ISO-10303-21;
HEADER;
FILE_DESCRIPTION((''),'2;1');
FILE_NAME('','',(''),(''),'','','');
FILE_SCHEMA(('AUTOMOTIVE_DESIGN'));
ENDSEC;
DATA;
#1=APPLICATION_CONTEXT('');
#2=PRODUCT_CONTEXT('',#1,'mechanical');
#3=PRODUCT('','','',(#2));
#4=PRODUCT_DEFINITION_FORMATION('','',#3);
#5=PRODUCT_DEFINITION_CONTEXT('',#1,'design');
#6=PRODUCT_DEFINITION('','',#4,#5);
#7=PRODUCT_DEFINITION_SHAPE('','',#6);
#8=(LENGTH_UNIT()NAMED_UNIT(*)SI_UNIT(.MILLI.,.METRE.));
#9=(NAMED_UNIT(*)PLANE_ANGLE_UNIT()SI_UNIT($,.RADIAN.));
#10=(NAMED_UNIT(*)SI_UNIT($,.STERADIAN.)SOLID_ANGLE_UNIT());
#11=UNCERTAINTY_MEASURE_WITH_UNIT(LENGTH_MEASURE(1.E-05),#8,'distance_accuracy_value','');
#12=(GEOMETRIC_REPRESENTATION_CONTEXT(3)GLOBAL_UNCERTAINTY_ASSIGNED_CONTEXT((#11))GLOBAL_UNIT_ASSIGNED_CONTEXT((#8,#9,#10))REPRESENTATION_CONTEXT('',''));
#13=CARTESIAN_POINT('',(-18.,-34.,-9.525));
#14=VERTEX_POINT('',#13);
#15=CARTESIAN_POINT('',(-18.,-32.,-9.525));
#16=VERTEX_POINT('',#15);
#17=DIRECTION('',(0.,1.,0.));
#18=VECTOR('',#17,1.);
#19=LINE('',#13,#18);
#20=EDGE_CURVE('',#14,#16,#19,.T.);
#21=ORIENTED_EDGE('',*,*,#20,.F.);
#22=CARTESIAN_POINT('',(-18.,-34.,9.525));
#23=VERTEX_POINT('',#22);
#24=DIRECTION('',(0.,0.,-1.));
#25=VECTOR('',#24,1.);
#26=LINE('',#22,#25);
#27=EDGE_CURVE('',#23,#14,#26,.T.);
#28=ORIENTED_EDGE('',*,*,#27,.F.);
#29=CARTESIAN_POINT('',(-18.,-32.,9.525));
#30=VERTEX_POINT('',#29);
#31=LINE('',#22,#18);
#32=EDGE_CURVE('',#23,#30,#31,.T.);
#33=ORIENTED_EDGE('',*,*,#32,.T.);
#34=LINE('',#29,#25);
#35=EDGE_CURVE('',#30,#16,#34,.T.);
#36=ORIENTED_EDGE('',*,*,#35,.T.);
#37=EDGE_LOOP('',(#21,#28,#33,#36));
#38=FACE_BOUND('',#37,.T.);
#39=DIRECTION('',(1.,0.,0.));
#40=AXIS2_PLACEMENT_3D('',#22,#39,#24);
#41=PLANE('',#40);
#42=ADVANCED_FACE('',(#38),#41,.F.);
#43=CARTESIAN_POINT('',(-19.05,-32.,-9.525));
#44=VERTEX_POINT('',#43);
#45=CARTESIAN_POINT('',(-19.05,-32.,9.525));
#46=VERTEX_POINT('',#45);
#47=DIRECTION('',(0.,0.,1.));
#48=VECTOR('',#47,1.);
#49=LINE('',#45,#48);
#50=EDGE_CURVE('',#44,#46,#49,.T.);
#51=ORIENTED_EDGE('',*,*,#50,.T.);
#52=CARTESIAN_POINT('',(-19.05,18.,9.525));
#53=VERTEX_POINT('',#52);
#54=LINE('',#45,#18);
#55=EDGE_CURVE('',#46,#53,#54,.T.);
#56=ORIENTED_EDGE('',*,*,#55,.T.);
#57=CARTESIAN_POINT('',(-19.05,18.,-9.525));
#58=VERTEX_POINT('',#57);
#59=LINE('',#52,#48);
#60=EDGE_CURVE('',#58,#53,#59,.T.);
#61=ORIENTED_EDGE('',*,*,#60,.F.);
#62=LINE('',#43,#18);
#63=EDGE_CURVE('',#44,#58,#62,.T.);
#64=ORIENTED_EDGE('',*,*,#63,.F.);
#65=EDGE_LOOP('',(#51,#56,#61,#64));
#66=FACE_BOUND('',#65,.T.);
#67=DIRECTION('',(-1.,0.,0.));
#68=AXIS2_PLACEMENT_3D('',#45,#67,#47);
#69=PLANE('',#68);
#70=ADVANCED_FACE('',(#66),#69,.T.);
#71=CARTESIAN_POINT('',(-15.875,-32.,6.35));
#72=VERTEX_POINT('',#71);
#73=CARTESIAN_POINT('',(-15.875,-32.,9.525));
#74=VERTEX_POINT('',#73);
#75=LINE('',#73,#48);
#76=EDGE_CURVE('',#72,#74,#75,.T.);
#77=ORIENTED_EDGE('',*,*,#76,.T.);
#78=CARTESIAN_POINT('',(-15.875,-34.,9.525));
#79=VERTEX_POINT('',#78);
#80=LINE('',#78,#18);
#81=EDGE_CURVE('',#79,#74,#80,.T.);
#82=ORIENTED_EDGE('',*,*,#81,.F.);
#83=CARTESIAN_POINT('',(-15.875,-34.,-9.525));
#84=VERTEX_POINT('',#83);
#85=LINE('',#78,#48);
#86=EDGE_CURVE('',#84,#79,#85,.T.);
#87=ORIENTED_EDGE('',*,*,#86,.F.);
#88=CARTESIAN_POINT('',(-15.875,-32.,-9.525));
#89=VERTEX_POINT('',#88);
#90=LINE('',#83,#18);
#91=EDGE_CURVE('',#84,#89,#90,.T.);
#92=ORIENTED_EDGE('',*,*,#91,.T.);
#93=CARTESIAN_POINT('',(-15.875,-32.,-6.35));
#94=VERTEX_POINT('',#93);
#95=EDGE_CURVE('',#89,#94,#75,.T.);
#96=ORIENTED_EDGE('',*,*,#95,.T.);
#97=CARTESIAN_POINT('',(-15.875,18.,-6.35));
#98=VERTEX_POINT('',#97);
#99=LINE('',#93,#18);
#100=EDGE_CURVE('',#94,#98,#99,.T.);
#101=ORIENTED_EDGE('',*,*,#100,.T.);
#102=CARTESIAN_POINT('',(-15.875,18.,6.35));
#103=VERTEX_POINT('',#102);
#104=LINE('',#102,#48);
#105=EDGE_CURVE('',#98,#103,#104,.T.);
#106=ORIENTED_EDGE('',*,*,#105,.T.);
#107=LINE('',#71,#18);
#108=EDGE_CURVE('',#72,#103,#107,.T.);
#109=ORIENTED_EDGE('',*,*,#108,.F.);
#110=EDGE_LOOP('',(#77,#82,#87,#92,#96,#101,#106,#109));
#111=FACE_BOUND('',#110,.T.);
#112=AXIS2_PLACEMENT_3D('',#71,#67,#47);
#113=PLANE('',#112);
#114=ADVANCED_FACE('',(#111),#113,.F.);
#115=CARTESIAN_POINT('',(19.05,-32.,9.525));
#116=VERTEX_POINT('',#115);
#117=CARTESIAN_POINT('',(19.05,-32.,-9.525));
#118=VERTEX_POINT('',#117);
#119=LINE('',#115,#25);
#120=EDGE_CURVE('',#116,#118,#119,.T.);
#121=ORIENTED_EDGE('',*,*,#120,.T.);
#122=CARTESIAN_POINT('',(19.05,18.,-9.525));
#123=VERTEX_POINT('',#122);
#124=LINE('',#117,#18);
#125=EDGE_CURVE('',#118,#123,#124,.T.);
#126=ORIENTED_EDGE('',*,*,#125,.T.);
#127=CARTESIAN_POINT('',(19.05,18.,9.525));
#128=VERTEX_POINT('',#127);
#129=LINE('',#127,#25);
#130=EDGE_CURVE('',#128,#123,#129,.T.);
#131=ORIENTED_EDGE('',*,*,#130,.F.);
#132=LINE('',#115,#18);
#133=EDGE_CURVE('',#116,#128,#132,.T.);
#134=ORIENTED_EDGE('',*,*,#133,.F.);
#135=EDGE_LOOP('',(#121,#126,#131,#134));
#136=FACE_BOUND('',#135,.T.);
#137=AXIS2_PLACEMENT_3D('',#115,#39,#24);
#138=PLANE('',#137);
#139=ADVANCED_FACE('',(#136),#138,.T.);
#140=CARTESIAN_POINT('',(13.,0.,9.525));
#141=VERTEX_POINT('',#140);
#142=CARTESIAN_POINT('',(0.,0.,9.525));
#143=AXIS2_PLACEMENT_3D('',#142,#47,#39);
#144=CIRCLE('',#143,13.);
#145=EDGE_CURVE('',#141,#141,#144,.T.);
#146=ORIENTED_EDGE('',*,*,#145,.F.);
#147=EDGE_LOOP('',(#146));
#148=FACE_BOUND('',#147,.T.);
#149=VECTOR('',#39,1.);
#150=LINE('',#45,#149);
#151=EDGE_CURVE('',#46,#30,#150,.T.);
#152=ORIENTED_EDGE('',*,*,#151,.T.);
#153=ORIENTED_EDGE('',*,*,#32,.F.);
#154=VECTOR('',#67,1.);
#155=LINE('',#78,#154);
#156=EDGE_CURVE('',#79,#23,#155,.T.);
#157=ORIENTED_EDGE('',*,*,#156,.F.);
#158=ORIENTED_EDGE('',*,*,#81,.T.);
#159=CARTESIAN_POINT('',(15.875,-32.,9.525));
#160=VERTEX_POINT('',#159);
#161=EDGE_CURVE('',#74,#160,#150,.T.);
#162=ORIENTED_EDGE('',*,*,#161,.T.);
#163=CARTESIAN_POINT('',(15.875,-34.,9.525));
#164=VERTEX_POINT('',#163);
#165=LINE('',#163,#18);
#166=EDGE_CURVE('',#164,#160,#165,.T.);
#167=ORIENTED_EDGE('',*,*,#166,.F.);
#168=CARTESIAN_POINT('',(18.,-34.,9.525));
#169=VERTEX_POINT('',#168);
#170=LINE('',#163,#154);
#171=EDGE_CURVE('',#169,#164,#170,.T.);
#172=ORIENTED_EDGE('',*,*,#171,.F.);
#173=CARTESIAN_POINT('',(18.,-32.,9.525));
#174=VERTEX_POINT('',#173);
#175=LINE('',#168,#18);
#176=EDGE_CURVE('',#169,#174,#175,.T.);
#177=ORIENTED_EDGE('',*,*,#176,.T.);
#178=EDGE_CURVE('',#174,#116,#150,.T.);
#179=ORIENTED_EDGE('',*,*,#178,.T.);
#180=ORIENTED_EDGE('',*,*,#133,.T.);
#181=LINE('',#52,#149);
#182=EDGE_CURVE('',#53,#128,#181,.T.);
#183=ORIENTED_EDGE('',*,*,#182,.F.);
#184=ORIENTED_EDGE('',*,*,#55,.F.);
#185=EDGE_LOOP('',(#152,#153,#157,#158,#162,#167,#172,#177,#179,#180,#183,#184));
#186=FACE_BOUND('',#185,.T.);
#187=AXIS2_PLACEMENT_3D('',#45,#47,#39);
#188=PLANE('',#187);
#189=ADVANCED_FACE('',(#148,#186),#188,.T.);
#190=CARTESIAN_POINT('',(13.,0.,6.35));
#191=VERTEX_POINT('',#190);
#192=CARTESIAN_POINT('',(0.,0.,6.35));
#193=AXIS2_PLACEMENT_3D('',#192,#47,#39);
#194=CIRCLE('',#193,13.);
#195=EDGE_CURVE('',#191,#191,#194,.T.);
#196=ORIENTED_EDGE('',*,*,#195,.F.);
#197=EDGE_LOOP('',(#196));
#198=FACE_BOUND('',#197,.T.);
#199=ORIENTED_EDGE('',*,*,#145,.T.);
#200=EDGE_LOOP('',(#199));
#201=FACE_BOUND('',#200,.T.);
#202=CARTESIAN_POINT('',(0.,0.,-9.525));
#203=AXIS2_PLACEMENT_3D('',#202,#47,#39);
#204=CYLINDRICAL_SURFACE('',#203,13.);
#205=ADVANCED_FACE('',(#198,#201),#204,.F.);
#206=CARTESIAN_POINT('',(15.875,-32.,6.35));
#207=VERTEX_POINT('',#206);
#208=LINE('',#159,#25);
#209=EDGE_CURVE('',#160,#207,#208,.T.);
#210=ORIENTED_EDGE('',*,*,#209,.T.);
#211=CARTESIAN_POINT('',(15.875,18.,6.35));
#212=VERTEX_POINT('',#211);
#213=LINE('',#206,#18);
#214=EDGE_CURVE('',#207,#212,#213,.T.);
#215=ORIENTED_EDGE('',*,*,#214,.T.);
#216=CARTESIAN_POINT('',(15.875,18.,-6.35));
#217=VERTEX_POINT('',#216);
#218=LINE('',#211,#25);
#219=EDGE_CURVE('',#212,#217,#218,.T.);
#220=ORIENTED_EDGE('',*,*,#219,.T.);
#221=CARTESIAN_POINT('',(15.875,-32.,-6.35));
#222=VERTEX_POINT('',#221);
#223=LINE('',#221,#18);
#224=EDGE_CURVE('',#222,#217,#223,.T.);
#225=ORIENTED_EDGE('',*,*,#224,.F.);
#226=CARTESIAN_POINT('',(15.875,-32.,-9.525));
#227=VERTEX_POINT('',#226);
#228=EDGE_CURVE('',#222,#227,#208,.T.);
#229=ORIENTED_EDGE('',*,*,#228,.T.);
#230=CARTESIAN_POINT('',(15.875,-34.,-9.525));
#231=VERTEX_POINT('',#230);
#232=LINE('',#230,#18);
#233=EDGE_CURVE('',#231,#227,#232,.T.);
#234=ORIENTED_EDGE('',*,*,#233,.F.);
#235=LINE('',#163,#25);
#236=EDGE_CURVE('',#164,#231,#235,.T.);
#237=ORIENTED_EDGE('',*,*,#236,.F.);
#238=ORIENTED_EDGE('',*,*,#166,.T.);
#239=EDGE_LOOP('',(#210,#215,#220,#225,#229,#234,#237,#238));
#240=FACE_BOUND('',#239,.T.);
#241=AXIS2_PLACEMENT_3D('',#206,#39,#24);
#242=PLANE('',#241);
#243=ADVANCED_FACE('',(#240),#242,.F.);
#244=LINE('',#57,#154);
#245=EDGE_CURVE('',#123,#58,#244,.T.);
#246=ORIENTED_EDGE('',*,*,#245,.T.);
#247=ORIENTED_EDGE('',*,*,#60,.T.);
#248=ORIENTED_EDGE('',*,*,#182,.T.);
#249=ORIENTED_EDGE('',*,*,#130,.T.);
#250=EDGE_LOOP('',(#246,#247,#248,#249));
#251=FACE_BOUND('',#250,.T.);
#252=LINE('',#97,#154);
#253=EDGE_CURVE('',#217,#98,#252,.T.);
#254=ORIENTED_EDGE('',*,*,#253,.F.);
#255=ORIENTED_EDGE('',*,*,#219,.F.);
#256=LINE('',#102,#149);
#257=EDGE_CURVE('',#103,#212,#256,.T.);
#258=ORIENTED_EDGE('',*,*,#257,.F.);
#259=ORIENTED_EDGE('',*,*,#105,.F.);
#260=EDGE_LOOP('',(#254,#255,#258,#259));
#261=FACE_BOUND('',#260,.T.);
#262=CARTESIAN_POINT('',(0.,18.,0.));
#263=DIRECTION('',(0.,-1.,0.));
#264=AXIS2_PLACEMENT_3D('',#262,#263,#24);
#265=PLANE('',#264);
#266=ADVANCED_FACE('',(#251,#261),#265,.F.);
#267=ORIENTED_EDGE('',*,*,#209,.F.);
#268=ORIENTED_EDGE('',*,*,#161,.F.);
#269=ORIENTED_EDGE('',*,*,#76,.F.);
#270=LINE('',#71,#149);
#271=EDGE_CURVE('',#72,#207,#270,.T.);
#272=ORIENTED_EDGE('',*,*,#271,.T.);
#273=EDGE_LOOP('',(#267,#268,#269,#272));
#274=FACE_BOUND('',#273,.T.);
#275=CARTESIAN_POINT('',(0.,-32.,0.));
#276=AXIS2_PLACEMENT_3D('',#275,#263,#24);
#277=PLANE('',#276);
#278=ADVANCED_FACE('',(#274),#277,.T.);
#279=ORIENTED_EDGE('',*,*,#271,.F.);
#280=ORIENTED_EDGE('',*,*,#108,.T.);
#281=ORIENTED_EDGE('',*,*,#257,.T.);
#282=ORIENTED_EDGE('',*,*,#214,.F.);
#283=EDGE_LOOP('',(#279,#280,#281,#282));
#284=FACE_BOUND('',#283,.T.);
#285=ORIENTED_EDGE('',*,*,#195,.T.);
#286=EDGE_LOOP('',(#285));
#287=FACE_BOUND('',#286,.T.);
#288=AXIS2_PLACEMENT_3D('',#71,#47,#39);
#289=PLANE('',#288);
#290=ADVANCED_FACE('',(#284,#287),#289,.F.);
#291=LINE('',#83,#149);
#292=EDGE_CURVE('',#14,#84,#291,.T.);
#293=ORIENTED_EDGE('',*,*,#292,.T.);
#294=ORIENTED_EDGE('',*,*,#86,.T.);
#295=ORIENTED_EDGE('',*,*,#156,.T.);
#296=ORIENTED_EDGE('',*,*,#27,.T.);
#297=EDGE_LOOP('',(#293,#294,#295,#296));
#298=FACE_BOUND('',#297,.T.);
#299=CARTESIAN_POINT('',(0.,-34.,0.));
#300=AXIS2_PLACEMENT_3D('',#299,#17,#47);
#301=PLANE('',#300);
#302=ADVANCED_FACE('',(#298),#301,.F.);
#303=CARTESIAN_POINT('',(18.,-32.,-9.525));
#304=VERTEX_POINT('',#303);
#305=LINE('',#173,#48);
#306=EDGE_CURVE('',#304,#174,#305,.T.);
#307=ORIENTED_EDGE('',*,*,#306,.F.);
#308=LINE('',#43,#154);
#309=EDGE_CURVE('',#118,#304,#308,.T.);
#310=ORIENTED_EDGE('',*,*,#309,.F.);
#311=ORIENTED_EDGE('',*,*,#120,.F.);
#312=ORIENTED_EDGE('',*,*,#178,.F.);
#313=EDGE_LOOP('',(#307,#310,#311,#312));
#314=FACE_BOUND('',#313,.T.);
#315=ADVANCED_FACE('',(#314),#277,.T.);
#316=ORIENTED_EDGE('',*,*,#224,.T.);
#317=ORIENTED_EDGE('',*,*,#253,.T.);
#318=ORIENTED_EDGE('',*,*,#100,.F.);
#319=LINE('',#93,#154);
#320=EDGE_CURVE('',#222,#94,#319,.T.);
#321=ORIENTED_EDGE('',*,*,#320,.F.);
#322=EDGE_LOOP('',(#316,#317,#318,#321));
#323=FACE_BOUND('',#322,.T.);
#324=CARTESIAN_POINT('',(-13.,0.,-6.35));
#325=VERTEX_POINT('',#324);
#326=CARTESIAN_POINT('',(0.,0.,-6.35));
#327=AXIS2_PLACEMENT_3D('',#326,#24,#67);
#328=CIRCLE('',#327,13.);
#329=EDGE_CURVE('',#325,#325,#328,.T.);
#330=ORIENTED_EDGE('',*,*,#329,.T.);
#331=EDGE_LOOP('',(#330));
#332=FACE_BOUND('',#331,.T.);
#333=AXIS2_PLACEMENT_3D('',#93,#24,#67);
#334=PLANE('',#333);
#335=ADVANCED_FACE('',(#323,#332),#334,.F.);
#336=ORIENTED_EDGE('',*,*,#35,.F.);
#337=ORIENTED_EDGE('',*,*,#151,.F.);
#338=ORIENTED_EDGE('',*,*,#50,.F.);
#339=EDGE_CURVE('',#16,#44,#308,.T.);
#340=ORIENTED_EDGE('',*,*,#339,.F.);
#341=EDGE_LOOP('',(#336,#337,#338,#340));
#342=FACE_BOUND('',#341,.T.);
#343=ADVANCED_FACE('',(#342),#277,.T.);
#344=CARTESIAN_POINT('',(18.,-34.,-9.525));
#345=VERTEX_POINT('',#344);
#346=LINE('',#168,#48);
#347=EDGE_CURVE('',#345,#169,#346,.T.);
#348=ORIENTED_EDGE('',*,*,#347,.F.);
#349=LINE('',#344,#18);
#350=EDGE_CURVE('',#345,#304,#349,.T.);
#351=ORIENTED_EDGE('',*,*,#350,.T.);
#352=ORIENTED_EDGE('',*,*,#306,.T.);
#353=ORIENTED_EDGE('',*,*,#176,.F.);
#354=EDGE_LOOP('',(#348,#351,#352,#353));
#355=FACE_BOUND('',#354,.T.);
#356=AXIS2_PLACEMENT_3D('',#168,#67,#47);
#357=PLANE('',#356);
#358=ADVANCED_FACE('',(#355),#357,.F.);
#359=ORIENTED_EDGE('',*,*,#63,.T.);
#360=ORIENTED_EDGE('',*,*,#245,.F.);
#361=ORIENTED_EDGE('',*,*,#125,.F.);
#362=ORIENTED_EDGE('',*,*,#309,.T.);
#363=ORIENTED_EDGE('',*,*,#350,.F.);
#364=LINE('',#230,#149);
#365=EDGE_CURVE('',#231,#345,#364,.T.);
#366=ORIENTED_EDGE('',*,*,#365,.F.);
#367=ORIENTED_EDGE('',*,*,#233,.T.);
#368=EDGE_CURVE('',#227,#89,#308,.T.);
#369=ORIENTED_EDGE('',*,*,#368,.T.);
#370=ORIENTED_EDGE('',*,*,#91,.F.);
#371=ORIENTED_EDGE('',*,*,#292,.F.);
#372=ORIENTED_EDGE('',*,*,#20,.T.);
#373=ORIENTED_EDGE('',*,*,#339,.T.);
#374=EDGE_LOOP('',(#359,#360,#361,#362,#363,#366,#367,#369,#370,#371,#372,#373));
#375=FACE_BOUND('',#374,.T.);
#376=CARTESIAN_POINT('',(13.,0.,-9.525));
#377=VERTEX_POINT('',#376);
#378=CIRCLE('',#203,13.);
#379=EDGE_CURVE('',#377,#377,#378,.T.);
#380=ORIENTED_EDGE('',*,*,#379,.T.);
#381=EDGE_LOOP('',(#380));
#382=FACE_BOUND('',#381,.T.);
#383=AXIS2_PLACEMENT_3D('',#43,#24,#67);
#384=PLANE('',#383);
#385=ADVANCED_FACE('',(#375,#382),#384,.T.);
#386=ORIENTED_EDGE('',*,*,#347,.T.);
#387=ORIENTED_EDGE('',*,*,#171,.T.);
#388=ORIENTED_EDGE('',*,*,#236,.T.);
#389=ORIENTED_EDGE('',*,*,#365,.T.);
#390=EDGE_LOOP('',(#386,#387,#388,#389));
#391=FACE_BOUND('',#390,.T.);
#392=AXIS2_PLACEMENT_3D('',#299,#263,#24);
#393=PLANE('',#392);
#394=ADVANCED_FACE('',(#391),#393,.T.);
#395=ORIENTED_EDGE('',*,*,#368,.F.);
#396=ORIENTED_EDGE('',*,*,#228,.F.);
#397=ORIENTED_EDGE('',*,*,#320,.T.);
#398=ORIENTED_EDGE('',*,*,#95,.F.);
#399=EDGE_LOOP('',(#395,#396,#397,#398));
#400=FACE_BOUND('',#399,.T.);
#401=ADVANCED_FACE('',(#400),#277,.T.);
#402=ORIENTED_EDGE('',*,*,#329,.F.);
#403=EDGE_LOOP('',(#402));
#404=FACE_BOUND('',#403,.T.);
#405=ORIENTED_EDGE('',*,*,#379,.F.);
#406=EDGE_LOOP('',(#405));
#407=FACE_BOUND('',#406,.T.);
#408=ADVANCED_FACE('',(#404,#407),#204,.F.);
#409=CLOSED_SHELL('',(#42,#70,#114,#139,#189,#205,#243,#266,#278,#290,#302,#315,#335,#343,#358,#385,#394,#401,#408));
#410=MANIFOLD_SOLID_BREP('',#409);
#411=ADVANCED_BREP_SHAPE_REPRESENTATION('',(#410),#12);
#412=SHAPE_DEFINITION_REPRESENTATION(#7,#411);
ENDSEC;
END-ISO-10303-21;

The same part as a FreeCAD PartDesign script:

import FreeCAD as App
import Part
import Sketcher

V = App.Vector
Q = App.Units.Quantity

doc = App.newDocument("Part")
body = doc.addObject("PartDesign::Body", "Body")

# Sketch on XZ plane
sketch1 = body.newObject("Sketcher::SketchObject", "Sketch")
sketch1.AttachmentSupport = (doc.getObject("XZ_Plane"), [""])
sketch1.MapMode = "FlatFace"
sketch1.addGeometry(Part.LineSegment(V(-19.05, -9.525, 0), V(-19.05, 9.525, 0)), False)
sketch1.addGeometry(Part.LineSegment(V(-19.05, 9.525, 0), V(19.05, 9.525, 0)), False)
sketch1.addGeometry(Part.LineSegment(V(19.05, 9.525, 0), V(19.05, -9.525, 0)), False)
sketch1.addGeometry(Part.LineSegment(V(19.05, -9.525, 0), V(-19.05, -9.525, 0)), False)
sketch1.addGeometry(Part.LineSegment(V(15.875, 6.35, 0), V(-15.875, 6.35, 0)), False)
sketch1.addGeometry(Part.LineSegment(V(-15.875, 6.35, 0), V(-15.875, -6.35, 0)), False)
sketch1.addGeometry(Part.LineSegment(V(-15.875, -6.35, 0), V(15.875, -6.35, 0)), False)
sketch1.addGeometry(Part.LineSegment(V(15.875, -6.35, 0), V(15.875, 6.35, 0)), False)
sketch1.addConstraint(Sketcher.Constraint("Coincident", 0, 2, 1, 1))
sketch1.addConstraint(Sketcher.Constraint("Coincident", 1, 2, 2, 1))
sketch1.addConstraint(Sketcher.Constraint("Coincident", 2, 2, 3, 1))
sketch1.addConstraint(Sketcher.Constraint("Coincident", 3, 2, 0, 1))
sketch1.addConstraint(Sketcher.Constraint("Coincident", 4, 2, 5, 1))
sketch1.addConstraint(Sketcher.Constraint("Coincident", 5, 2, 6, 1))
sketch1.addConstraint(Sketcher.Constraint("Coincident", 6, 2, 7, 1))
sketch1.addConstraint(Sketcher.Constraint("Coincident", 7, 2, 4, 1))
sketch1.addConstraint(Sketcher.Constraint("Vertical", 0))
sketch1.addConstraint(Sketcher.Constraint("Horizontal", 1))
sketch1.addConstraint(Sketcher.Constraint("Vertical", 2))
sketch1.addConstraint(Sketcher.Constraint("Horizontal", 3))
sketch1.addConstraint(Sketcher.Constraint("Horizontal", 4))
sketch1.addConstraint(Sketcher.Constraint("Vertical", 5))
sketch1.addConstraint(Sketcher.Constraint("Horizontal", 6))
sketch1.addConstraint(Sketcher.Constraint("Vertical", 7))
sketch1.addConstraint(Sketcher.Constraint("Symmetric", 0, 2, 2, 2, -1, 1))
sketch1.addConstraint(Sketcher.Constraint("Symmetric", 4, 2, 6, 2, -1, 1))
sketch1.addConstraint(Sketcher.Constraint("DistanceX", 1, 1, 1, 2, Q("1.5 in")))
sketch1.addConstraint(Sketcher.Constraint("DistanceY", 5, 2, 5, 1, Q("0.5 in")))
sketch1.addConstraint(Sketcher.Constraint("DistanceX", 4, 2, 4, 1, Q("1.25 in")))
sketch1.addConstraint(Sketcher.Constraint("DistanceY", 0, 1, 0, 2, Q("0.75 in")))
pad1 = body.newObject("PartDesign::Pad", "Pad")
pad1.Profile = sketch1
pad1.Type = "TwoLengths"
pad1.Length = 18
pad1.Length2 = 32
pad1.Reversed = True

# Sketch on XY plane
sketch2 = body.newObject("Sketcher::SketchObject", "Sketch001")
sketch2.AttachmentSupport = (doc.getObject("XY_Plane"), [""])
sketch2.MapMode = "FlatFace"
sketch2.AttachmentOffset = App.Placement(V(0, 0, 0.375 * 25.4), App.Rotation())
sketch2.addGeometry(Part.Circle(V(0, 0, 0), V(0, 0, 1), 13), False)
sketch2.addConstraint(Sketcher.Constraint("Coincident", 0, 3, -1, 1))
sketch2.addConstraint(Sketcher.Constraint("Diameter", 0, 26.0))
pocket1 = body.newObject("PartDesign::Pocket", "Pocket")
pocket1.Profile = sketch2
pocket1.Type = "ThroughAll"

# Sketch on XZ plane
sketch3 = body.newObject("Sketcher::SketchObject", "Sketch002")
sketch3.AttachmentSupport = (doc.getObject("XZ_Plane"), [""])
sketch3.MapMode = "FlatFace"
sketch3.AttachmentOffset = App.Placement(V(0, 0, 32), App.Rotation())
sketch3.addGeometry(Part.LineSegment(V(-18, 9.525, 0), V(-18, -9.525, 0)), False)
sketch3.addGeometry(Part.LineSegment(V(-18, -9.525, 0), V(-15.875, -9.525, 0)), False)
sketch3.addGeometry(Part.LineSegment(V(-15.875, -9.525, 0), V(-15.875, 9.525, 0)), False)
sketch3.addGeometry(Part.LineSegment(V(-15.875, 9.525, 0), V(-18, 9.525, 0)), False)
sketch3.addGeometry(Part.LineSegment(V(15.875, 9.525, 0), V(15.875, -9.525, 0)), False)
sketch3.addGeometry(Part.LineSegment(V(15.875, -9.525, 0), V(18, -9.525, 0)), False)
sketch3.addGeometry(Part.LineSegment(V(18, -9.525, 0), V(18, 9.525, 0)), False)
sketch3.addGeometry(Part.LineSegment(V(18, 9.525, 0), V(15.875, 9.525, 0)), False)
sketch3.addConstraint(Sketcher.Constraint("Coincident", 0, 2, 1, 1))
sketch3.addConstraint(Sketcher.Constraint("Coincident", 1, 2, 2, 1))
sketch3.addConstraint(Sketcher.Constraint("Coincident", 2, 2, 3, 1))
sketch3.addConstraint(Sketcher.Constraint("Coincident", 3, 2, 0, 1))
sketch3.addConstraint(Sketcher.Constraint("Coincident", 4, 2, 5, 1))
sketch3.addConstraint(Sketcher.Constraint("Coincident", 5, 2, 6, 1))
sketch3.addConstraint(Sketcher.Constraint("Coincident", 6, 2, 7, 1))
sketch3.addConstraint(Sketcher.Constraint("Coincident", 7, 2, 4, 1))
sketch3.addConstraint(Sketcher.Constraint("Vertical", 0))
sketch3.addConstraint(Sketcher.Constraint("Horizontal", 1))
sketch3.addConstraint(Sketcher.Constraint("Vertical", 2))
sketch3.addConstraint(Sketcher.Constraint("Horizontal", 3))
sketch3.addConstraint(Sketcher.Constraint("Vertical", 4))
sketch3.addConstraint(Sketcher.Constraint("Horizontal", 5))
sketch3.addConstraint(Sketcher.Constraint("Vertical", 6))
sketch3.addConstraint(Sketcher.Constraint("Horizontal", 7))
sketch3.addConstraint(Sketcher.Constraint("Symmetric", 2, 2, 4, 2, -1, 1))
sketch3.addConstraint(Sketcher.Constraint("Symmetric", 0, 2, 6, 2, -1, 1))
sketch3.addConstraint(Sketcher.Constraint("Horizontal", 1, 2, 4, 2))
sketch3.addConstraint(Sketcher.Constraint("DistanceY", 0, 2, 0, 1, Q("0.75 in")))
sketch3.addConstraint(Sketcher.Constraint("DistanceX", 1, 2, 4, 2, Q("1.25 in")))
sketch3.addConstraint(Sketcher.Constraint("DistanceX", 1, 1, 1, 2, 2.125))
pad2 = body.newObject("PartDesign::Pad", "Pad001")
pad2.Profile = sketch3
pad2.Length = 2

doc.recompute()
